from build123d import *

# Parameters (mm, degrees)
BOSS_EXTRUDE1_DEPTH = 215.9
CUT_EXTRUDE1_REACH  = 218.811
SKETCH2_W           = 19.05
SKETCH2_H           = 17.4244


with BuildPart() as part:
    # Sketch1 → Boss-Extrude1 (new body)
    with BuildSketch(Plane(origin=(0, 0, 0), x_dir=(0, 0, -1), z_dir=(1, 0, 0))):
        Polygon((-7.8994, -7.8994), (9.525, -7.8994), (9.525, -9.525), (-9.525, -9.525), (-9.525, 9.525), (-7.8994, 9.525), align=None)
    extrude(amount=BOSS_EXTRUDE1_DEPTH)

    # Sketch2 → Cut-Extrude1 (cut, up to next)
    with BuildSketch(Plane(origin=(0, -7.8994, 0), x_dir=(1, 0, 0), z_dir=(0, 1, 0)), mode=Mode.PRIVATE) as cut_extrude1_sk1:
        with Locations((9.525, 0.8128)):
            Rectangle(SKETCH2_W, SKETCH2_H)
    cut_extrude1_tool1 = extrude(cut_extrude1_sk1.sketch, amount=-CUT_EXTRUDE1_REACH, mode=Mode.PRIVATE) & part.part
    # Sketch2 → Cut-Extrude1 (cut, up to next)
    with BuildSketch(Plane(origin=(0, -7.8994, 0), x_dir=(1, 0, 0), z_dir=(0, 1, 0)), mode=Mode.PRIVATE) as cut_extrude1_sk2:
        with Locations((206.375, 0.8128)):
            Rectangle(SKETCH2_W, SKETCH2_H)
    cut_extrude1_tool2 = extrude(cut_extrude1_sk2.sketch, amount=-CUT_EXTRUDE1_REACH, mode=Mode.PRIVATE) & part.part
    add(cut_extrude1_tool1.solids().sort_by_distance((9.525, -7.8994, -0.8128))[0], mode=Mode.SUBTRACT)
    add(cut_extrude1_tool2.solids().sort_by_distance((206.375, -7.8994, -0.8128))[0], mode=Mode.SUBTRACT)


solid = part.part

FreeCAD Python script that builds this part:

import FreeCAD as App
import Part
import Sketcher
Q = App.Units.Quantity


def add_polygon(sketch, points):
    """Adds a closed chain of lines whose ends are joined by coincident constraints."""
    first, n = sketch.GeometryCount, len(points)
    for a, b in zip(points, points[1:] + points[:1]):
        sketch.addGeometry(Part.LineSegment(App.Vector(*a, 0), App.Vector(*b, 0)), False)
    for i in range(n):
        sketch.addConstraint(Sketcher.Constraint("Coincident", first + i, 2, first + (i + 1) % n, 1))

doc = App.newDocument("Part")
body = doc.addObject("PartDesign::Body", "Body")

# Sketch on YZ plane
sketch1 = body.newObject("Sketcher::SketchObject", "Sketch")
sketch1.AttachmentSupport = (doc.getObject("YZ_Plane"), [""])
sketch1.MapMode = "FlatFace"
add_polygon(sketch1, [(-7.9, -9.5), (-7.9, 7.9), (9.5, 7.9), (9.5, 9.5), (-9.5, 9.5), (-9.5, -9.5)])  # lines 0-5
sketch1.addConstraint(Sketcher.Constraint("Vertical", 0))
sketch1.addConstraint(Sketcher.Constraint("Horizontal", 1))
sketch1.addConstraint(Sketcher.Constraint("Vertical", 2))
sketch1.addConstraint(Sketcher.Constraint("Horizontal", 3))
sketch1.addConstraint(Sketcher.Constraint("Vertical", 4))
sketch1.addConstraint(Sketcher.Constraint("Horizontal", 5))
sketch1.addConstraint(Sketcher.Constraint("Symmetric", 2, 2, 4, 2, -1, 1))
sketch1.addConstraint(Sketcher.Constraint("Equal", 1, 0))
sketch1.addConstraint(Sketcher.Constraint("Equal", 5, 2))
sketch1.addConstraint(Sketcher.Constraint("DistanceX", 3, 2, 3, 1, Q("0.75 in")))
sketch1.addConstraint(Sketcher.Constraint("DistanceX", 1, 1, 1, 2, Q("0.686 in")))
pad1 = body.newObject("PartDesign::Pad", "Pad")
pad1.Profile = sketch1
pad1.Length = Q("8.5 in")

# Sketch on XZ plane
sketch2 = body.newObject("Sketcher::SketchObject", "Sketch001")
sketch2.AttachmentSupport = (doc.getObject("XZ_Plane"), [""])
sketch2.MapMode = "FlatFace"
sketch2.AttachmentOffset = App.Placement(App.Vector(0, 0, 0.311 * 25.4), App.Rotation())
add_polygon(sketch2, [(0, -10), (0, 8), (19, 8), (19, -10)])  # lines 0-3
sketch2.addConstraint(Sketcher.Constraint("Vertical", 0))
sketch2.addConstraint(Sketcher.Constraint("Horizontal", 1))
sketch2.addConstraint(Sketcher.Constraint("Vertical", 2))
sketch2.addConstraint(Sketcher.Constraint("Horizontal", 3))
sketch2.addConstraint(Sketcher.Constraint("PointOnObject", 0, 2, -2))
sketch2.addConstraint(Sketcher.Constraint("DistanceX", 1, 1, 1, 2, Q("0.75 in")))
sketch2.addConstraint(Sketcher.Constraint("DistanceY", 0, 1, 0, 2, Q("0.686 in")))
sketch2.addConstraint(Sketcher.Constraint("DistanceY", -1, 1, 0, 2, Q("0.311 in")))
pocket1 = body.newObject("PartDesign::Pocket", "Pocket")
pocket1.Profile = sketch2
pocket1.Type = "UpToFirst"
pocket1.Reversed = True

# Sketch on XZ plane
sketch3 = body.newObject("Sketcher::SketchObject", "Sketch002")
sketch3.AttachmentSupport = (doc.getObject("XZ_Plane"), [""])
sketch3.MapMode = "FlatFace"
sketch3.AttachmentOffset = App.Placement(App.Vector(0, 0, 0.311 * 25.4), App.Rotation())
add_polygon(sketch3, [(197, -10), (197, 8), (216, 8), (216, -10)])  # lines 0-3
sketch3.addConstraint(Sketcher.Constraint("Vertical", 0))
sketch3.addConstraint(Sketcher.Constraint("Horizontal", 1))
sketch3.addConstraint(Sketcher.Constraint("Vertical", 2))
sketch3.addConstraint(Sketcher.Constraint("Horizontal", 3))
sketch3.addConstraint(Sketcher.Constraint("DistanceX", 1, 1, 1, 2, Q("0.75 in")))
sketch3.addConstraint(Sketcher.Constraint("DistanceX", -1, 1, 1, 2, Q("8.5 in")))
sketch3.addConstraint(Sketcher.Constraint("DistanceY", 0, 1, 0, 2, Q("0.686 in")))
sketch3.addConstraint(Sketcher.Constraint("DistanceY", -1, 1, 0, 2, Q("0.311 in")))
pocket2 = body.newObject("PartDesign::Pocket", "Pocket001")
pocket2.Profile = sketch3
pocket2.Type = "UpToFirst"
pocket2.Reversed = True

doc.recompute()
